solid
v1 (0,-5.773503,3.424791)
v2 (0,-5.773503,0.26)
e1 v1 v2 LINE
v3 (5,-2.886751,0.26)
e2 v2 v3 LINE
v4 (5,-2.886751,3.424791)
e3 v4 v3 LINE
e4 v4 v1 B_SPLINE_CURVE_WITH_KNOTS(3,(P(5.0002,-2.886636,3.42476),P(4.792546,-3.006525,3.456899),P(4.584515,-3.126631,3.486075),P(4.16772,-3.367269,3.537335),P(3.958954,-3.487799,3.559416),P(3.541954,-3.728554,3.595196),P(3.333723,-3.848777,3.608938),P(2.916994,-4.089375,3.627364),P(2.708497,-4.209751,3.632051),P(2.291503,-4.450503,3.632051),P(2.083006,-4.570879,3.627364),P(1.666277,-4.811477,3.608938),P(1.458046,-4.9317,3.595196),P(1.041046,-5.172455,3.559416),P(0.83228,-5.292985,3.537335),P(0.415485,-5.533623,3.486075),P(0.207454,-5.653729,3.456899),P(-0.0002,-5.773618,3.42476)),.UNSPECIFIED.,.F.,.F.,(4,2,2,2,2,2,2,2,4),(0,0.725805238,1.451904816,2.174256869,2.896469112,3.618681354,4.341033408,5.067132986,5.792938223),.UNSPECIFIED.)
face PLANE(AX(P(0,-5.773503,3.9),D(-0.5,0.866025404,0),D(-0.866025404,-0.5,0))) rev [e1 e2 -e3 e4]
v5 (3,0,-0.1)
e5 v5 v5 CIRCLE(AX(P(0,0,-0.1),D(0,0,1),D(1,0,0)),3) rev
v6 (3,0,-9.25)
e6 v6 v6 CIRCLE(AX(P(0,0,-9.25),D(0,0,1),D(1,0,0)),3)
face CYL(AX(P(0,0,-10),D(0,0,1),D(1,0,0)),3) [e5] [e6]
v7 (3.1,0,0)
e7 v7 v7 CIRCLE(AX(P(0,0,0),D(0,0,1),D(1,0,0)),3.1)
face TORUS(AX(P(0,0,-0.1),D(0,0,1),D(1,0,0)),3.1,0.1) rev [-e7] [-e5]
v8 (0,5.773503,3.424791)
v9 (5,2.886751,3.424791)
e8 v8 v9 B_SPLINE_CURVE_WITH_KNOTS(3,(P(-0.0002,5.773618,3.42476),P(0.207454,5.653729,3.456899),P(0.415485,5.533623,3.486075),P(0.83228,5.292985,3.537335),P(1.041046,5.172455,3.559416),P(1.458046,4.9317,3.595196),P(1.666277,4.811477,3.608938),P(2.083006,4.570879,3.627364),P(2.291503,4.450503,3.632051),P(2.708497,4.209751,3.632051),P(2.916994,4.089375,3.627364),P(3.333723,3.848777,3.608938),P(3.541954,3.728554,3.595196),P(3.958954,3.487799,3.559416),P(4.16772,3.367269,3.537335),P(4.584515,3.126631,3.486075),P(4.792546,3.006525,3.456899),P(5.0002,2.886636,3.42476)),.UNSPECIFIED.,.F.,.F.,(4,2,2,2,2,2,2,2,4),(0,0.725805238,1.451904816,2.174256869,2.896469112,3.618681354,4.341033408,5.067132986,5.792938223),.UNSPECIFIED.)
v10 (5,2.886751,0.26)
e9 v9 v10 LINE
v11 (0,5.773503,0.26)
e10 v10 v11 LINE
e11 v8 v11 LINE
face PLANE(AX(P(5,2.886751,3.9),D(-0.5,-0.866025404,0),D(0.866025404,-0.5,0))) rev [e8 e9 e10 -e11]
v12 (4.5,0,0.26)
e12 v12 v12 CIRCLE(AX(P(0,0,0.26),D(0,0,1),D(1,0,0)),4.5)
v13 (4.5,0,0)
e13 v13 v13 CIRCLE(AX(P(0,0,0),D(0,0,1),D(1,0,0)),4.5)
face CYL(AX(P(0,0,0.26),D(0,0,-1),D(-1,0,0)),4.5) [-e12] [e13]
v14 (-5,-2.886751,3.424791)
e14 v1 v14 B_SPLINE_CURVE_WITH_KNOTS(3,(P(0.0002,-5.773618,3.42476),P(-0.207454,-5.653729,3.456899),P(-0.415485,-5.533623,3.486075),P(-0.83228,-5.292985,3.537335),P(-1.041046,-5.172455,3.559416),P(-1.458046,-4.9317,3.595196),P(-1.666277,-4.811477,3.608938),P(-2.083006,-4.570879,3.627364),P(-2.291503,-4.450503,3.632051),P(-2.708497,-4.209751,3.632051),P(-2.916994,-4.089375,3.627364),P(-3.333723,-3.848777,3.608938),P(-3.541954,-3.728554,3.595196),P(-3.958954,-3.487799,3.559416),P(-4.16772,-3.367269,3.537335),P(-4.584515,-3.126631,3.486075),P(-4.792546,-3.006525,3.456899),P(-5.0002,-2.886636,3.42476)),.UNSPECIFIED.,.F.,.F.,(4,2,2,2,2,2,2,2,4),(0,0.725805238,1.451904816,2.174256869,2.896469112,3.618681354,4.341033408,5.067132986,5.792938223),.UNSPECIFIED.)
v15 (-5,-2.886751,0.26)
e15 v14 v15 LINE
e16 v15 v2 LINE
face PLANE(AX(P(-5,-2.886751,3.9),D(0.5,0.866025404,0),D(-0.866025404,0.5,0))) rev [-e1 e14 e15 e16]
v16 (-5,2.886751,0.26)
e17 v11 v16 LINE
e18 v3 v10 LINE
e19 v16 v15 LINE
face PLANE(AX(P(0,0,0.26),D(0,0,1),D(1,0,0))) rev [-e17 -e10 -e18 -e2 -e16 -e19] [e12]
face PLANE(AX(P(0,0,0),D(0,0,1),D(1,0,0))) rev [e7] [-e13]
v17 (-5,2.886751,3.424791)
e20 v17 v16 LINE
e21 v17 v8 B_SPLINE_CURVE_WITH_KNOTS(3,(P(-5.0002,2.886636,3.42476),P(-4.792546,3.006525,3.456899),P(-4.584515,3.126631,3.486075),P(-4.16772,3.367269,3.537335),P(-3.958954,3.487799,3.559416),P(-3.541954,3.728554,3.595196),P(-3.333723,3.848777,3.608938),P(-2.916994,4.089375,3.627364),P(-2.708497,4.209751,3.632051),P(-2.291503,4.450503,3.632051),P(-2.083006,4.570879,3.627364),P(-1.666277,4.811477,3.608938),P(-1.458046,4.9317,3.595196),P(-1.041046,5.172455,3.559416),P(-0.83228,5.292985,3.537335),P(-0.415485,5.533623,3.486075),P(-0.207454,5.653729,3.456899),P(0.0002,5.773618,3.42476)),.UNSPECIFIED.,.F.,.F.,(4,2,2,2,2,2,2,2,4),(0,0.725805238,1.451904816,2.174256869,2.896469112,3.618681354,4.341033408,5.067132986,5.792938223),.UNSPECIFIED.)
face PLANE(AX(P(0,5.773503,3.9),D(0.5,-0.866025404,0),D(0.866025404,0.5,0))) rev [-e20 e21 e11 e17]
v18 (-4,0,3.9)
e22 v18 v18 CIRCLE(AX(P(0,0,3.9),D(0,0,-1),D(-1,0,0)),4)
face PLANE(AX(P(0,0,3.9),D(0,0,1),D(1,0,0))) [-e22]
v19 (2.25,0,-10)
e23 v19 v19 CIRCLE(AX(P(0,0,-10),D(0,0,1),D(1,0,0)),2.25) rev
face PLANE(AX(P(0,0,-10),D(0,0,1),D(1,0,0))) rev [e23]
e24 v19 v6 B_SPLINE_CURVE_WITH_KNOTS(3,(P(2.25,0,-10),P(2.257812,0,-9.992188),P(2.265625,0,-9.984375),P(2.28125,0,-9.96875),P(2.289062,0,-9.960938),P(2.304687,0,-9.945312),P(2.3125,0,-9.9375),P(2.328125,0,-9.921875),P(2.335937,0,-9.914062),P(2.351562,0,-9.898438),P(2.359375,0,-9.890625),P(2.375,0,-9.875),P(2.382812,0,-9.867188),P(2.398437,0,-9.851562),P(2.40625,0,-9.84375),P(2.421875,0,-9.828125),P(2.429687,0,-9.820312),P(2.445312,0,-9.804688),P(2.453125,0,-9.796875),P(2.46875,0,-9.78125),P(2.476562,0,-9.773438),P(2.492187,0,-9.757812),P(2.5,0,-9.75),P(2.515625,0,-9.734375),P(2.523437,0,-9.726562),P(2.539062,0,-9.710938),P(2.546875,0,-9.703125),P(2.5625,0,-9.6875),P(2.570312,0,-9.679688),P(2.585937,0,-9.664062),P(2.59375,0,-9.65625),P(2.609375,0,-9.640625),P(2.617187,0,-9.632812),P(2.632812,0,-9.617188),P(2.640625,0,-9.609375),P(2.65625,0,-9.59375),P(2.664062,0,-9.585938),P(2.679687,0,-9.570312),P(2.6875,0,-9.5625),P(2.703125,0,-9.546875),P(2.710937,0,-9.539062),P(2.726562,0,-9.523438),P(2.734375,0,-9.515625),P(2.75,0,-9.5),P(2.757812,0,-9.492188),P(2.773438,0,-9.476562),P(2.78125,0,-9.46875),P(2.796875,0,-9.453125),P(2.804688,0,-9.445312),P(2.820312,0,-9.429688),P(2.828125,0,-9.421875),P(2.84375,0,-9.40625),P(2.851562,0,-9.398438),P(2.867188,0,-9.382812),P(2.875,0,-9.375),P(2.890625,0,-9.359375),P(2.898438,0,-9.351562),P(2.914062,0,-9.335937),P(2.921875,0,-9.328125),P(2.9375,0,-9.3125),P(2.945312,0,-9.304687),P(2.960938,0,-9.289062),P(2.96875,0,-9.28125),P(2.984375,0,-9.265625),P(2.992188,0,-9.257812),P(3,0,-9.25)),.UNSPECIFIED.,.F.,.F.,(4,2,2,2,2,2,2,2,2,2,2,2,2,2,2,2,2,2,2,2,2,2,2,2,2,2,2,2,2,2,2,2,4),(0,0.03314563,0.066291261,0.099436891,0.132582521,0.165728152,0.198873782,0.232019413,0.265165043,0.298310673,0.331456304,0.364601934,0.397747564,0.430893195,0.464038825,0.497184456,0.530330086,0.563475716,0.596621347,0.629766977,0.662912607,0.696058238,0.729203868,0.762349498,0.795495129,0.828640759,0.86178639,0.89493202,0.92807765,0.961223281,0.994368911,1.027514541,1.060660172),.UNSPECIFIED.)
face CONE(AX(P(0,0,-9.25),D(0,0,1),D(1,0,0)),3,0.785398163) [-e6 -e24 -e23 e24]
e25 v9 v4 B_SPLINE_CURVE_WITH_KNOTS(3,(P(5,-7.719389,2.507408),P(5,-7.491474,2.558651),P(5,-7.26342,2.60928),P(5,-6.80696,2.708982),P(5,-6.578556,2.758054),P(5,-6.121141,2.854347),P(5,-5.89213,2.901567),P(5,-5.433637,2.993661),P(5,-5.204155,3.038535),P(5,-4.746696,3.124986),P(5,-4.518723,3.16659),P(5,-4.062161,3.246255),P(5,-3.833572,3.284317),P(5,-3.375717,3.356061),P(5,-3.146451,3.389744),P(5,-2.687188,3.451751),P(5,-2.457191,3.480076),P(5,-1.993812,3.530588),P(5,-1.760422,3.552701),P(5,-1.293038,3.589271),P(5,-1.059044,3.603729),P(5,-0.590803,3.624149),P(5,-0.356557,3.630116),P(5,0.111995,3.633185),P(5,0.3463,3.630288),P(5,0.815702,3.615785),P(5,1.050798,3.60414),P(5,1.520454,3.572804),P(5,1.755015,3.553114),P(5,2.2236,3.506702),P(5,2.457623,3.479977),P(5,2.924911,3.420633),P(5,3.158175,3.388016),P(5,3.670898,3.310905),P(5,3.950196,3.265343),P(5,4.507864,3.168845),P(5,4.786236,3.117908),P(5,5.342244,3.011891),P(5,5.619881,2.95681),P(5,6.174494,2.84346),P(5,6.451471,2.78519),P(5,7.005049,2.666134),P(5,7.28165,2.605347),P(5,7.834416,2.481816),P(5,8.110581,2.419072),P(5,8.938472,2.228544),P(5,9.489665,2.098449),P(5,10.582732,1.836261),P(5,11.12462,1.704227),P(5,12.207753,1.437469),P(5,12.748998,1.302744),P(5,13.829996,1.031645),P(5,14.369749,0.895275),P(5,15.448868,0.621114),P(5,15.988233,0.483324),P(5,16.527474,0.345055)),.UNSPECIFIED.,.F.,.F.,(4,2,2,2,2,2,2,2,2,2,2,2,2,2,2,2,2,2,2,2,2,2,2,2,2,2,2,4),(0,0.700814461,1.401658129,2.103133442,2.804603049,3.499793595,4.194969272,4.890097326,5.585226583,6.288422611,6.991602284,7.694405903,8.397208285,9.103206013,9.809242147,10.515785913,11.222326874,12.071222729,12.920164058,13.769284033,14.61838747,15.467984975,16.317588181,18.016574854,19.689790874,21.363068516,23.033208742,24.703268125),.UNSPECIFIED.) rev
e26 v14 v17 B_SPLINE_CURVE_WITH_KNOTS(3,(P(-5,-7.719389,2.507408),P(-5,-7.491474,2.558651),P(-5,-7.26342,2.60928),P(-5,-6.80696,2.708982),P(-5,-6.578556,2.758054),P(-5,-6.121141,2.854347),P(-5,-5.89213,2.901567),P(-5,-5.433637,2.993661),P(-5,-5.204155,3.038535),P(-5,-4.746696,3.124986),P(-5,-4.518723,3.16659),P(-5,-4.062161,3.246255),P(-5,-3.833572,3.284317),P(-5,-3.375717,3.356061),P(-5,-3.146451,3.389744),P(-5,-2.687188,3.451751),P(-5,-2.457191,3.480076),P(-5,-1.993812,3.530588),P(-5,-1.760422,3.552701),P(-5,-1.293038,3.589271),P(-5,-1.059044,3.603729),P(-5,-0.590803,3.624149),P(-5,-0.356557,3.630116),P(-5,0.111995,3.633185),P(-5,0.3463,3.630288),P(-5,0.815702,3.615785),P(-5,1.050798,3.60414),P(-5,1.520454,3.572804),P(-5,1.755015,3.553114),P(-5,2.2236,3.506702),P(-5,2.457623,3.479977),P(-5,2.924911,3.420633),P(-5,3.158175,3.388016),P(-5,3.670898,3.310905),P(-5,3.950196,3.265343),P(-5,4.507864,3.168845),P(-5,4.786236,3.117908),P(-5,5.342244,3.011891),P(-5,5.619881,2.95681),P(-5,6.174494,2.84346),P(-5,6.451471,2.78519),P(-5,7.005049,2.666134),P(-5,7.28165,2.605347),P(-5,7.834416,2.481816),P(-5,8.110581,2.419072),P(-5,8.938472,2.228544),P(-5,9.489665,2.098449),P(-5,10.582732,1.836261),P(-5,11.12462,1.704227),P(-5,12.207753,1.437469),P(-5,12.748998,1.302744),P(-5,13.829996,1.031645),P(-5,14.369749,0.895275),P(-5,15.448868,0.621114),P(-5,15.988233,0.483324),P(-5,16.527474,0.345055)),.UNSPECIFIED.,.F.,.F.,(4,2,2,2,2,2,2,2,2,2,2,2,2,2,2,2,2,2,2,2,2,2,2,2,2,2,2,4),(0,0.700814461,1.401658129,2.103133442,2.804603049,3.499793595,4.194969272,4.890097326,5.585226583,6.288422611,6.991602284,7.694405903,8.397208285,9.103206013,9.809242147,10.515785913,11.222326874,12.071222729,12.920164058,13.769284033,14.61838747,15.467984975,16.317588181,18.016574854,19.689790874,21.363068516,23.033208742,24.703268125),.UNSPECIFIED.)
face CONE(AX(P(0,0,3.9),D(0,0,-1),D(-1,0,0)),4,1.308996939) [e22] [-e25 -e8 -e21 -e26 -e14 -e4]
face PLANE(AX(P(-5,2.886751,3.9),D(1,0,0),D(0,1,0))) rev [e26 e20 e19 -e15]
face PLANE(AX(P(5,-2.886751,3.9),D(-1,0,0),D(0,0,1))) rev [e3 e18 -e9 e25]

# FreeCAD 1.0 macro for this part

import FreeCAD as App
import Part
import Sketcher
Q = App.Units.Quantity


def edges_at(feature, points):
    """Names of the edges that pass closest to the given points."""
    edges = feature.Shape.Edges
    near = lambda p: min(range(len(edges)), key=lambda i: edges[i].distToShape(Part.Vertex(*p))[0])
    return sorted({f"Edge{near(p) + 1}" for p in points})

doc = App.newDocument("Part")
body = doc.addObject("PartDesign::Body", "Body")

# Sketch on XY plane
sketch1 = doc.addObject("Sketcher::SketchObject", "Sketch")
body.addObject(sketch1)
sketch1.AttachmentSupport = (doc.XY_Plane, [""])
sketch1.MapMode = "FlatFace"
sketch1.addGeometry([
    Part.LineSegment(App.Vector(0, 6, 0), App.Vector(-5, 3, 0)),  # 0
    Part.LineSegment(App.Vector(-5, 3, 0), App.Vector(-5, -3, 0)),  # 1
    Part.LineSegment(App.Vector(-5, -3, 0), App.Vector(0, -6, 0)),  # 2
    Part.LineSegment(App.Vector(0, -6, 0), App.Vector(5, -3, 0)),  # 3
    Part.LineSegment(App.Vector(5, -3, 0), App.Vector(5, 3, 0)),  # 4
    Part.LineSegment(App.Vector(5, 3, 0), App.Vector(0, 6, 0)),  # 5
], False)
sketch1.addConstraint([
    Sketcher.Constraint("Coincident", 0, 2, 1, 1),
    Sketcher.Constraint("Coincident", 1, 2, 2, 1),
    Sketcher.Constraint("Coincident", 2, 2, 3, 1),
    Sketcher.Constraint("Coincident", 3, 2, 4, 1),
    Sketcher.Constraint("Coincident", 4, 2, 5, 1),
    Sketcher.Constraint("Coincident", 5, 2, 0, 1),
    Sketcher.Constraint("Vertical", 1),
    Sketcher.Constraint("Vertical", 4),
    Sketcher.Constraint("Symmetric", 0, 2, 3, 2, -1, 1),
    Sketcher.Constraint("Symmetric", 2, 2, 5, 2, -1, 1),
    Sketcher.Constraint("PointOnObject", 2, 2, -2),
    Sketcher.Constraint("Parallel", 2, 5),
    Sketcher.Constraint("Horizontal", 1, 2, 3, 2),
    Sketcher.Constraint("Angle", 0, Q("-150 deg")),
    Sketcher.Constraint("DistanceX", 0, 2, -1, 1, 5.0),
    Sketcher.Constraint("DistanceY", 1, 2, 1, 1, 5.773503),
])
pad1 = doc.addObject("PartDesign::Pad", "Pad")
body.addObject(pad1)
pad1.Profile = sketch1
pad1.Length = 3.9

# Sketch on XY plane
sketch2 = doc.addObject("Sketcher::SketchObject", "Sketch001")
body.addObject(sketch2)
sketch2.AttachmentSupport = (doc.XY_Plane, [""])
sketch2.MapMode = "FlatFace"
sketch2.addGeometry(Part.Circle(App.Vector(0, 0, 0), App.Vector(0, 0, 1), 3), False)
sketch2.addConstraint([
    Sketcher.Constraint("Coincident", 0, 3, -1, 1),
    Sketcher.Constraint("Diameter", 0, 6.0),
])
pad2 = doc.addObject("PartDesign::Pad", "Pad001")
body.addObject(pad2)
pad2.Profile = sketch2
pad2.Length = 10
pad2.Reversed = True

# Sketch on YZ plane
sketch3 = doc.addObject("Sketcher::SketchObject", "Sketch002")
body.addObject(sketch3)
sketch3.AttachmentSupport = (doc.YZ_Plane, [""])
sketch3.MapMode = "FlatFace"
sketch3.addGeometry([
    Part.LineSegment(App.Vector(20, 3.9, 0), App.Vector(4, 3.9, 0)),
    Part.LineSegment(App.Vector(4, 3.9, 0), App.Vector(20, -0.4, 0)),
    Part.LineSegment(App.Vector(20, -0.4, 0), App.Vector(20, 3.9, 0)),
], False)
sketch3.addConstraint([
    Sketcher.Constraint("Coincident", 0, 2, 1, 1),
    Sketcher.Constraint("Coincident", 1, 2, 2, 1),
    Sketcher.Constraint("Coincident", 2, 2, 0, 1),
    Sketcher.Constraint("Horizontal", 0),
    Sketcher.Constraint("Vertical", 2),
    Sketcher.Constraint("DistanceX", 0, 2, 0, 1, 16.0),
    Sketcher.Constraint("Angle", 1, Q("-15 deg")),
    Sketcher.Constraint("DistanceX", -1, 1, 0, 2, 4.0),
    Sketcher.Constraint("DistanceY", -1, 1, 0, 2, 3.9),
])
groove = doc.addObject("PartDesign::Groove", "Groove")
body.addObject(groove)
groove.Profile = sketch3
groove.ReferenceAxis = (sketch3, ["V_Axis"])
groove.Angle = 360
doc.recompute()

chamfer = doc.addObject("PartDesign::Chamfer", "Chamfer")
body.addObject(chamfer)
chamfer.Base = (groove, edges_at(groove, [(-3, 0, -10)]))
chamfer.Size = 0.75

# Sketch on XY plane
sketch4 = doc.addObject("Sketcher::SketchObject", "Sketch003")
body.addObject(sketch4)
sketch4.AttachmentSupport = (doc.XY_Plane, [""])
sketch4.MapMode = "FlatFace"
sketch4.addGeometry([
    Part.LineSegment(App.Vector(-8.1, 8.8, 0), App.Vector(-8.1, -8.8, 0)),  # 0
    Part.LineSegment(App.Vector(-8.1, -8.8, 0), App.Vector(8.1, -8.8, 0)),  # 1
    Part.LineSegment(App.Vector(8.1, -8.8, 0), App.Vector(8.1, 8.8, 0)),  # 2
    Part.LineSegment(App.Vector(8.1, 8.8, 0), App.Vector(-8.1, 8.8, 0)),  # 3
    Part.Circle(App.Vector(0, 0, 0), App.Vector(0, 0, 1), 4.5),  # 4
], False)
sketch4.addConstraint([
    Sketcher.Constraint("Coincident", 0, 2, 1, 1),
    Sketcher.Constraint("Coincident", 1, 2, 2, 1),
    Sketcher.Constraint("Coincident", 2, 2, 3, 1),
    Sketcher.Constraint("Coincident", 3, 2, 0, 1),
    Sketcher.Constraint("Vertical", 0),
    Sketcher.Constraint("Horizontal", 1),
    Sketcher.Constraint("Vertical", 2),
    Sketcher.Constraint("Horizontal", 3),
    Sketcher.Constraint("Coincident", 4, 3, -1, 1),
    Sketcher.Constraint("Symmetric", 0, 2, 2, 2, -1, 1),
    Sketcher.Constraint("Diameter", 4, 9.0),
    Sketcher.Constraint("DistanceX", 1, 1, 1, 2, 16.13),
    Sketcher.Constraint("DistanceY", 0, 2, 0, 1, 17.678),
])
pocket1 = doc.addObject("PartDesign::Pocket", "Pocket")
body.addObject(pocket1)
pocket1.Profile = sketch4
pocket1.Length = 0.26
pocket1.Reversed = True
doc.recompute()

fillet = doc.addObject("PartDesign::Fillet", "Fillet")
body.addObject(fillet)
fillet.Base = (pocket1, edges_at(pocket1, [(-3, 0, 0)]))
fillet.Radius = 0.1

doc.recompute()
